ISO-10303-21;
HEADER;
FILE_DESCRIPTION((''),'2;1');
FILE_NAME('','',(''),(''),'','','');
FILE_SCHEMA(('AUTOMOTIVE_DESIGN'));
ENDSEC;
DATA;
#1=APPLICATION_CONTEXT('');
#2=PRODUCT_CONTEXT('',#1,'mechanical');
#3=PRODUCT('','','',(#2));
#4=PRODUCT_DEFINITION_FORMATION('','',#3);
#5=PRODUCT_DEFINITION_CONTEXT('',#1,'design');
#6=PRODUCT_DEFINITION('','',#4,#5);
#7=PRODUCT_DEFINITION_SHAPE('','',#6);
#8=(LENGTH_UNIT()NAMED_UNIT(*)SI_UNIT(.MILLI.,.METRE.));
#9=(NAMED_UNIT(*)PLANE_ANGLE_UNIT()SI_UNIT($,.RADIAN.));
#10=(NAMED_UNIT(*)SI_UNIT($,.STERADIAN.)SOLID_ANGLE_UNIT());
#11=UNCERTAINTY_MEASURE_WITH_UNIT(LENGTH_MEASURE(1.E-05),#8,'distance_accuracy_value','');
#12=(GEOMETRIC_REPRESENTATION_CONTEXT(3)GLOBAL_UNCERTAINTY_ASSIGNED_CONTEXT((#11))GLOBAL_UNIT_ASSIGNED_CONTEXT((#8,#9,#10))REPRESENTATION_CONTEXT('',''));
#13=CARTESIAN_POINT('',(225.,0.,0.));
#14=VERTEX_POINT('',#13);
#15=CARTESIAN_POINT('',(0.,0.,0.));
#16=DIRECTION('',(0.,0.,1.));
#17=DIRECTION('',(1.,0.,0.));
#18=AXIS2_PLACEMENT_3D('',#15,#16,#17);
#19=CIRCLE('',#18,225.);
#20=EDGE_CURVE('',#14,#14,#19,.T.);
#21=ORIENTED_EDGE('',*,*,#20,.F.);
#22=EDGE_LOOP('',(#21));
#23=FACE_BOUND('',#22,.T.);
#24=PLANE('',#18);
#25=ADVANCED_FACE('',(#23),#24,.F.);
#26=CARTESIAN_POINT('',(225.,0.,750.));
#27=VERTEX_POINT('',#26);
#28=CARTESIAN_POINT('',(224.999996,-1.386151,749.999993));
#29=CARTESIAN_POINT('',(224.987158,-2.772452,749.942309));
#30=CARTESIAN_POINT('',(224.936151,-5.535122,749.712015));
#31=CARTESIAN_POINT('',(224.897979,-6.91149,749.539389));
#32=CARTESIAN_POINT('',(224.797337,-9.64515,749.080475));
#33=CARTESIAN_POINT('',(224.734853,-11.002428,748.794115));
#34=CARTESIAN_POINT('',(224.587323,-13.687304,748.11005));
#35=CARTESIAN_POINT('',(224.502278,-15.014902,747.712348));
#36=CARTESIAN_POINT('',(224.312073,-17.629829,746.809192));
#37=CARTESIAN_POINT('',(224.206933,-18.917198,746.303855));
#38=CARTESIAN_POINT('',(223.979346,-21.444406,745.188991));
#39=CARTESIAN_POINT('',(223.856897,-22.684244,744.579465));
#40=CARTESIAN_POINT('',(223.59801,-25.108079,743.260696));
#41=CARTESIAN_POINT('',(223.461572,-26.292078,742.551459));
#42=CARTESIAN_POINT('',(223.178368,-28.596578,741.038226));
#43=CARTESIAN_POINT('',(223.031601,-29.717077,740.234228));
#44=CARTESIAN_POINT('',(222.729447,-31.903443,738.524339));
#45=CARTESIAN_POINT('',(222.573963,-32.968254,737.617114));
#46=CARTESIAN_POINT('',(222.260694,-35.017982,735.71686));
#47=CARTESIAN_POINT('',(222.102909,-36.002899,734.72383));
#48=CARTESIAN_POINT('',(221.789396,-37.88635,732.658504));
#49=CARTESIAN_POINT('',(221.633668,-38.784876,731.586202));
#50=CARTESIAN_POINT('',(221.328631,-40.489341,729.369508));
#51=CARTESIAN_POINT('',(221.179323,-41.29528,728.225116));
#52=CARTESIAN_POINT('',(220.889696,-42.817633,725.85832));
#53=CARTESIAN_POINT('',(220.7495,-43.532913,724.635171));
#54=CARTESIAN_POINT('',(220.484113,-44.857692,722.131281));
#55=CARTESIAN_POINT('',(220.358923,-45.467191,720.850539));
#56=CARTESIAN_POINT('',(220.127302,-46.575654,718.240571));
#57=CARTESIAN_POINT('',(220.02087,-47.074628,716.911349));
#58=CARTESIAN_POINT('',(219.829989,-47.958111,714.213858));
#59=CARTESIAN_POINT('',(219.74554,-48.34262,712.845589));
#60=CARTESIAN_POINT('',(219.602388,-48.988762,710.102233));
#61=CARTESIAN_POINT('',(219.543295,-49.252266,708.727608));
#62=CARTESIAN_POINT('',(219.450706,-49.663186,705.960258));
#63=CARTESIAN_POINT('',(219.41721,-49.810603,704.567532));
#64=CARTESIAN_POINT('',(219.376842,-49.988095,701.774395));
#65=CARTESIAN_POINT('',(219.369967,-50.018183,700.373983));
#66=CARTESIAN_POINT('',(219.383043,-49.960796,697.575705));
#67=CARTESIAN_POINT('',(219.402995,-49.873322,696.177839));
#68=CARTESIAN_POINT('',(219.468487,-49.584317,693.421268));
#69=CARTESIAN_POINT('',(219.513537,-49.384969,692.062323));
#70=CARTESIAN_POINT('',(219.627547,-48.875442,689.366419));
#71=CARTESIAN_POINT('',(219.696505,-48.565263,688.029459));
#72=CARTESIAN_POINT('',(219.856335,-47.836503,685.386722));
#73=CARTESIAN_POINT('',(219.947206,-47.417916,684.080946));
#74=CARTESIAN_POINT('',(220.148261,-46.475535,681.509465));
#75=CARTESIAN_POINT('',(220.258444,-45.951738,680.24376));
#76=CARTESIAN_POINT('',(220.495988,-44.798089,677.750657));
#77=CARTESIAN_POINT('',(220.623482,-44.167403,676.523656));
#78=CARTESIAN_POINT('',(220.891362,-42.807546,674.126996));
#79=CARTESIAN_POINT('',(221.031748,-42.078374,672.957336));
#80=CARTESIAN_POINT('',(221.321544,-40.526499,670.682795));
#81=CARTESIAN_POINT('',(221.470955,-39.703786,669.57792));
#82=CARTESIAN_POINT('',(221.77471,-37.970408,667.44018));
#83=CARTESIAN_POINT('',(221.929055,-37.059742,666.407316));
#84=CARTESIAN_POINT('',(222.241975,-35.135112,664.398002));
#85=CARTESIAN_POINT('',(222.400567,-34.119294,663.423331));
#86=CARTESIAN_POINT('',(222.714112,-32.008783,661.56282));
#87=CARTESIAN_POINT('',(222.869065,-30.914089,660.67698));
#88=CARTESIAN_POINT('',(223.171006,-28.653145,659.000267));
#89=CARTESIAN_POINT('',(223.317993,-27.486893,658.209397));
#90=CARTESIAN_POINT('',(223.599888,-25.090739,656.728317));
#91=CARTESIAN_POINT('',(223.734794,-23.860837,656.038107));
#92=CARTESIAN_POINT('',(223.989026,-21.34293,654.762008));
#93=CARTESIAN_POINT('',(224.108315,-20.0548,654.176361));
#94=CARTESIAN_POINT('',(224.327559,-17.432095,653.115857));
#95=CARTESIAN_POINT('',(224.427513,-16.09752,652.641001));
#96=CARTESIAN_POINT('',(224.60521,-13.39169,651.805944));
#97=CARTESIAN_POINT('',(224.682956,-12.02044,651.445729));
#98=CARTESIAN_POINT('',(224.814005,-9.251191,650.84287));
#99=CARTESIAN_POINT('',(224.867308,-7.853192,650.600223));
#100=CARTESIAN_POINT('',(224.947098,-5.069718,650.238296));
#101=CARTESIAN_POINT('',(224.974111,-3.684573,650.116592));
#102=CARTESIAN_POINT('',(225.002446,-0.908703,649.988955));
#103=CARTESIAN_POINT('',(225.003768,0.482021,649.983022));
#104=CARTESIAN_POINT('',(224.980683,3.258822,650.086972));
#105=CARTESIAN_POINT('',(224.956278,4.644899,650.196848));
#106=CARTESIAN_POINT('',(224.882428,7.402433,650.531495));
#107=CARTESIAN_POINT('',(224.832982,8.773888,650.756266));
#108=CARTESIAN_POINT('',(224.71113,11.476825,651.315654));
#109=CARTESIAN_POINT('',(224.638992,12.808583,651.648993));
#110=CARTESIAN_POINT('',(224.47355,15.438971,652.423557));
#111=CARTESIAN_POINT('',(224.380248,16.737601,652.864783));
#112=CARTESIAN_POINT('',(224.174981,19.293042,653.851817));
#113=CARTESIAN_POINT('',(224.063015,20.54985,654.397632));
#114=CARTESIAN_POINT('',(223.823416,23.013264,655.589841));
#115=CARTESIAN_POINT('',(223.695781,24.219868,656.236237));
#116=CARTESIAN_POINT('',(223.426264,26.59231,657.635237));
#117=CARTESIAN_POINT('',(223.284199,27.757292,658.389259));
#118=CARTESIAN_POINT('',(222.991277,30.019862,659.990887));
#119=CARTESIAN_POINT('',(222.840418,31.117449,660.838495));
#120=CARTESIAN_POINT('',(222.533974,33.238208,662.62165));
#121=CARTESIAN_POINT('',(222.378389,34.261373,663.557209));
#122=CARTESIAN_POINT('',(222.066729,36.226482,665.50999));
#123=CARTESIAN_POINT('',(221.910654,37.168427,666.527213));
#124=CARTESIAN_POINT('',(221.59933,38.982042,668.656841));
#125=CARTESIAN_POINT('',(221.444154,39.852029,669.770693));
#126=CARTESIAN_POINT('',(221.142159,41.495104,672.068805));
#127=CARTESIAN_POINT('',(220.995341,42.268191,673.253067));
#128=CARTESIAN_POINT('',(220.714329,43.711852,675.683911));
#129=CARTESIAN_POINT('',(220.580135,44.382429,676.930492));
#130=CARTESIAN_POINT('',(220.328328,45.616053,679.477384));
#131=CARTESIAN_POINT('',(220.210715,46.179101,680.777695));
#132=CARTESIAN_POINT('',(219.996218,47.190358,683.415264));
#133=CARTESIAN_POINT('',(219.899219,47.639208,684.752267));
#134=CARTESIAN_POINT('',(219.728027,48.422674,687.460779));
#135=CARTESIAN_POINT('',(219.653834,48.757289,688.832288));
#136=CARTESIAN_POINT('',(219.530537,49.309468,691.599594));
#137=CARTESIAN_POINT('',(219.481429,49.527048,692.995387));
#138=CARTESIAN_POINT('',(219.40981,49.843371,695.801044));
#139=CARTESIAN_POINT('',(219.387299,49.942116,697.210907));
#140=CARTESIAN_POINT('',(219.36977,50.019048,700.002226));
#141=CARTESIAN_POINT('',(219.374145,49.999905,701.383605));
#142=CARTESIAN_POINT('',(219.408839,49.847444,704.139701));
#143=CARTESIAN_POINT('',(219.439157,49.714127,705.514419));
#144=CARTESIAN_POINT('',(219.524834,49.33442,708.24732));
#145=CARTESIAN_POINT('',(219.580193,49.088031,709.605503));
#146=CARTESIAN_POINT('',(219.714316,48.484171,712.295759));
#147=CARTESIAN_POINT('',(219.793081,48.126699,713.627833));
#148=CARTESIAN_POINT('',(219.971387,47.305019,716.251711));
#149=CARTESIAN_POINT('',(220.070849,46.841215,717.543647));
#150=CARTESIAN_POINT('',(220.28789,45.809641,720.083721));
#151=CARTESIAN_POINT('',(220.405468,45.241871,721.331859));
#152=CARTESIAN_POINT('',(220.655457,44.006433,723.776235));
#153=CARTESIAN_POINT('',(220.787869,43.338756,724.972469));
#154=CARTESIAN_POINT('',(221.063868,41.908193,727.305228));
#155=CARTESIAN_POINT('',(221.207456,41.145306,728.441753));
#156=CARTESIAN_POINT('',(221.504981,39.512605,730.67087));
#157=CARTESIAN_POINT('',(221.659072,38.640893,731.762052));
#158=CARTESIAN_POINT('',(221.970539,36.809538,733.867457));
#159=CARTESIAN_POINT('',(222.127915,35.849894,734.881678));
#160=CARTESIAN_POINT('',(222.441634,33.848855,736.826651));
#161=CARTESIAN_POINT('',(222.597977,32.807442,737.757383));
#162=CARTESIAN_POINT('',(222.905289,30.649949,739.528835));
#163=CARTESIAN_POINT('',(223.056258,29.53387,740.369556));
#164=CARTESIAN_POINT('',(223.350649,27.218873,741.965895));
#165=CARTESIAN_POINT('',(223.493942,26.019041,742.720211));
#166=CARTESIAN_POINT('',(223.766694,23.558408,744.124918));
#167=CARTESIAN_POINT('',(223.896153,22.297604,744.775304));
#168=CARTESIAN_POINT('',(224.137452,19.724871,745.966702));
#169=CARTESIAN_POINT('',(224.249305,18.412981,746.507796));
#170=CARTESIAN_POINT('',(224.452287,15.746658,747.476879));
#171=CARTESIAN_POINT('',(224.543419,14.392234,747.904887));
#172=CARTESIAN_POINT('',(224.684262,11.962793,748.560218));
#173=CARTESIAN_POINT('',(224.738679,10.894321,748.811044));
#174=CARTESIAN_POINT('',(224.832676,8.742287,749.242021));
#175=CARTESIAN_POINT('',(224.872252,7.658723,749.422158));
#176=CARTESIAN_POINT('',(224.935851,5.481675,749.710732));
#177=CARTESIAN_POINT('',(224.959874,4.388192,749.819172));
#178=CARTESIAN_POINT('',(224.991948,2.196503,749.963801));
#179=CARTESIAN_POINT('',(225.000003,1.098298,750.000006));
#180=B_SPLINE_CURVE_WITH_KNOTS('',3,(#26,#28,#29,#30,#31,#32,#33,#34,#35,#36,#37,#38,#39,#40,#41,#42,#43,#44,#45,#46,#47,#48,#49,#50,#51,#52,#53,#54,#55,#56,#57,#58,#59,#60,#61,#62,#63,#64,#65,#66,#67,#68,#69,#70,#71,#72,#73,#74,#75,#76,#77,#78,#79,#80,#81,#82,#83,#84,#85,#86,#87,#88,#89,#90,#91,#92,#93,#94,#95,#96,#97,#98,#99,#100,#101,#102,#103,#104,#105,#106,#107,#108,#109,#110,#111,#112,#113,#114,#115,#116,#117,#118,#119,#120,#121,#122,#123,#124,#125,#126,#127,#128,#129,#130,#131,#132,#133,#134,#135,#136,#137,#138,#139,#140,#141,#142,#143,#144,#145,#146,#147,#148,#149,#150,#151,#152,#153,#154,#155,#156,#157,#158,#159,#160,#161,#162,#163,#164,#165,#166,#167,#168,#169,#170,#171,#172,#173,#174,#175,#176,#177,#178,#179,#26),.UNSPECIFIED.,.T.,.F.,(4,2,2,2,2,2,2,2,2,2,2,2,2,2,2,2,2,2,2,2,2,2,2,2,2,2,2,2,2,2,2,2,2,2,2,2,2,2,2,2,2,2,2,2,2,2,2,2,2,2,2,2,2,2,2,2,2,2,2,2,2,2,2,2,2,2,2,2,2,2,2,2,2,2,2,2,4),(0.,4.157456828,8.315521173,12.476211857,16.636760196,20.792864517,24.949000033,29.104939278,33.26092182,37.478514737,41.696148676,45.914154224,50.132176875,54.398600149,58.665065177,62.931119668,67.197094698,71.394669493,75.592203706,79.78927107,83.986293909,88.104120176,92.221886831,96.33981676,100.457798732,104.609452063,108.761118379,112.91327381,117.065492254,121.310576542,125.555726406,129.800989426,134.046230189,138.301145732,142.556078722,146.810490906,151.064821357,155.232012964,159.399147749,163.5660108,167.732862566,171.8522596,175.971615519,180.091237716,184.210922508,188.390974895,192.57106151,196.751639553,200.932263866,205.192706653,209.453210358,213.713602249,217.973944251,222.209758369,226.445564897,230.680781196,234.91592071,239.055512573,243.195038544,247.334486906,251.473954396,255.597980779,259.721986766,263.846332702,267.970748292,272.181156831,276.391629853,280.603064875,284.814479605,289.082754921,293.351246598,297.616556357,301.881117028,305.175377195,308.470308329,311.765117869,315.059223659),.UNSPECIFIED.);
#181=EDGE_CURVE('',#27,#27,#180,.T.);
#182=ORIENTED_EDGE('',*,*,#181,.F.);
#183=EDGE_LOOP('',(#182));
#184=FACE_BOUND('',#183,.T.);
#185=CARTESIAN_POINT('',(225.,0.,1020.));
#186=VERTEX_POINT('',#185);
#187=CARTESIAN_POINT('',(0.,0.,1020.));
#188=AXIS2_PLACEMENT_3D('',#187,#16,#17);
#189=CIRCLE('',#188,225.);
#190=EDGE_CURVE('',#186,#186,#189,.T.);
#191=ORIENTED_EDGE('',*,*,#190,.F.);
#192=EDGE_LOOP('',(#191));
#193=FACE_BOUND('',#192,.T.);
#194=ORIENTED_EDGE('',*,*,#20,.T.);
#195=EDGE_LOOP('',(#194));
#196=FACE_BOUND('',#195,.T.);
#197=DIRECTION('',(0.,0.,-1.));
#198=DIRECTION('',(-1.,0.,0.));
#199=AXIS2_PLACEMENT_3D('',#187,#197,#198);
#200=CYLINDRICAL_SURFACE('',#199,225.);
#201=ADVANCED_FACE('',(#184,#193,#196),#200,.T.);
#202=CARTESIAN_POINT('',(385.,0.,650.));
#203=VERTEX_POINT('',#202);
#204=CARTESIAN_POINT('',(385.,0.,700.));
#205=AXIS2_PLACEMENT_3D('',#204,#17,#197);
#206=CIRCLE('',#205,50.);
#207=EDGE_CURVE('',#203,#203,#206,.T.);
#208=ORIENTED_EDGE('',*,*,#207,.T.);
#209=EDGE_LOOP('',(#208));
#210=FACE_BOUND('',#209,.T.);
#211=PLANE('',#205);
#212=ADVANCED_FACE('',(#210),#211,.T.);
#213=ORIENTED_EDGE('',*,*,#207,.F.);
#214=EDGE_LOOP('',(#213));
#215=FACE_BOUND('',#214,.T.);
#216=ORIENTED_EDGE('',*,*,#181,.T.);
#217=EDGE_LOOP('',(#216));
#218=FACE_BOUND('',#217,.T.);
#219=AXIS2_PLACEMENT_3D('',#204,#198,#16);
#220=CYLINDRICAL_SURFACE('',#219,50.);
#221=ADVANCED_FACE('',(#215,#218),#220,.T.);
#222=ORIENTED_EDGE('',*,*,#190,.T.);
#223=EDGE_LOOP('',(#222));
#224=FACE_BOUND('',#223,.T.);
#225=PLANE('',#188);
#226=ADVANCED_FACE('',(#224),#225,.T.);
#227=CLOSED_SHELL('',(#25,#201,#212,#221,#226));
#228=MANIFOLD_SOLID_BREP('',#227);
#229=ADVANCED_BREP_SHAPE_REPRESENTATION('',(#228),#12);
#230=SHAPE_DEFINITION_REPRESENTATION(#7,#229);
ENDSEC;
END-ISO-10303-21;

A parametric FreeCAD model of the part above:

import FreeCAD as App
import Part
import Sketcher

V = App.Vector
Q = App.Units.Quantity

doc = App.newDocument("Part")
body = doc.addObject("PartDesign::Body", "Body")

# Sketch on XY plane
sketch1 = doc.addObject("Sketcher::SketchObject", "Sketch")
body.addObject(sketch1)
sketch1.AttachmentSupport = (doc.XY_Plane, [""])
sketch1.MapMode = "FlatFace"
sketch1.addGeometry(Part.Circle(V(0, 0, 0), V(0, 0, 1), 225), False)
sketch1.addConstraint(Sketcher.Constraint("Coincident", 0, 3, -1, 1))
sketch1.addConstraint(Sketcher.Constraint("Diameter", 0, Q("450 mm")))
pad1 = doc.addObject("PartDesign::Pad", "Pad")
body.addObject(pad1)
pad1.Profile = sketch1
pad1.Length = 1020

# Sketch on YZ plane
sketch2 = doc.addObject("Sketcher::SketchObject", "Sketch001")
body.addObject(sketch2)
sketch2.AttachmentSupport = (doc.YZ_Plane, [""])
sketch2.MapMode = "FlatFace"
sketch2.addGeometry(Part.Circle(V(0, 700, 0), V(0, 0, 1), 50), False)
sketch2.addConstraint(Sketcher.Constraint("PointOnObject", 0, 3, -2))
sketch2.addConstraint(Sketcher.Constraint("Diameter", 0, Q("100 mm")))
sketch2.addConstraint(Sketcher.Constraint("DistanceY", -1, 1, 0, 3, Q("700 mm")))
pad2 = doc.addObject("PartDesign::Pad", "Pad001")
body.addObject(pad2)
pad2.Profile = sketch2
pad2.Length = 385

doc.recompute()
